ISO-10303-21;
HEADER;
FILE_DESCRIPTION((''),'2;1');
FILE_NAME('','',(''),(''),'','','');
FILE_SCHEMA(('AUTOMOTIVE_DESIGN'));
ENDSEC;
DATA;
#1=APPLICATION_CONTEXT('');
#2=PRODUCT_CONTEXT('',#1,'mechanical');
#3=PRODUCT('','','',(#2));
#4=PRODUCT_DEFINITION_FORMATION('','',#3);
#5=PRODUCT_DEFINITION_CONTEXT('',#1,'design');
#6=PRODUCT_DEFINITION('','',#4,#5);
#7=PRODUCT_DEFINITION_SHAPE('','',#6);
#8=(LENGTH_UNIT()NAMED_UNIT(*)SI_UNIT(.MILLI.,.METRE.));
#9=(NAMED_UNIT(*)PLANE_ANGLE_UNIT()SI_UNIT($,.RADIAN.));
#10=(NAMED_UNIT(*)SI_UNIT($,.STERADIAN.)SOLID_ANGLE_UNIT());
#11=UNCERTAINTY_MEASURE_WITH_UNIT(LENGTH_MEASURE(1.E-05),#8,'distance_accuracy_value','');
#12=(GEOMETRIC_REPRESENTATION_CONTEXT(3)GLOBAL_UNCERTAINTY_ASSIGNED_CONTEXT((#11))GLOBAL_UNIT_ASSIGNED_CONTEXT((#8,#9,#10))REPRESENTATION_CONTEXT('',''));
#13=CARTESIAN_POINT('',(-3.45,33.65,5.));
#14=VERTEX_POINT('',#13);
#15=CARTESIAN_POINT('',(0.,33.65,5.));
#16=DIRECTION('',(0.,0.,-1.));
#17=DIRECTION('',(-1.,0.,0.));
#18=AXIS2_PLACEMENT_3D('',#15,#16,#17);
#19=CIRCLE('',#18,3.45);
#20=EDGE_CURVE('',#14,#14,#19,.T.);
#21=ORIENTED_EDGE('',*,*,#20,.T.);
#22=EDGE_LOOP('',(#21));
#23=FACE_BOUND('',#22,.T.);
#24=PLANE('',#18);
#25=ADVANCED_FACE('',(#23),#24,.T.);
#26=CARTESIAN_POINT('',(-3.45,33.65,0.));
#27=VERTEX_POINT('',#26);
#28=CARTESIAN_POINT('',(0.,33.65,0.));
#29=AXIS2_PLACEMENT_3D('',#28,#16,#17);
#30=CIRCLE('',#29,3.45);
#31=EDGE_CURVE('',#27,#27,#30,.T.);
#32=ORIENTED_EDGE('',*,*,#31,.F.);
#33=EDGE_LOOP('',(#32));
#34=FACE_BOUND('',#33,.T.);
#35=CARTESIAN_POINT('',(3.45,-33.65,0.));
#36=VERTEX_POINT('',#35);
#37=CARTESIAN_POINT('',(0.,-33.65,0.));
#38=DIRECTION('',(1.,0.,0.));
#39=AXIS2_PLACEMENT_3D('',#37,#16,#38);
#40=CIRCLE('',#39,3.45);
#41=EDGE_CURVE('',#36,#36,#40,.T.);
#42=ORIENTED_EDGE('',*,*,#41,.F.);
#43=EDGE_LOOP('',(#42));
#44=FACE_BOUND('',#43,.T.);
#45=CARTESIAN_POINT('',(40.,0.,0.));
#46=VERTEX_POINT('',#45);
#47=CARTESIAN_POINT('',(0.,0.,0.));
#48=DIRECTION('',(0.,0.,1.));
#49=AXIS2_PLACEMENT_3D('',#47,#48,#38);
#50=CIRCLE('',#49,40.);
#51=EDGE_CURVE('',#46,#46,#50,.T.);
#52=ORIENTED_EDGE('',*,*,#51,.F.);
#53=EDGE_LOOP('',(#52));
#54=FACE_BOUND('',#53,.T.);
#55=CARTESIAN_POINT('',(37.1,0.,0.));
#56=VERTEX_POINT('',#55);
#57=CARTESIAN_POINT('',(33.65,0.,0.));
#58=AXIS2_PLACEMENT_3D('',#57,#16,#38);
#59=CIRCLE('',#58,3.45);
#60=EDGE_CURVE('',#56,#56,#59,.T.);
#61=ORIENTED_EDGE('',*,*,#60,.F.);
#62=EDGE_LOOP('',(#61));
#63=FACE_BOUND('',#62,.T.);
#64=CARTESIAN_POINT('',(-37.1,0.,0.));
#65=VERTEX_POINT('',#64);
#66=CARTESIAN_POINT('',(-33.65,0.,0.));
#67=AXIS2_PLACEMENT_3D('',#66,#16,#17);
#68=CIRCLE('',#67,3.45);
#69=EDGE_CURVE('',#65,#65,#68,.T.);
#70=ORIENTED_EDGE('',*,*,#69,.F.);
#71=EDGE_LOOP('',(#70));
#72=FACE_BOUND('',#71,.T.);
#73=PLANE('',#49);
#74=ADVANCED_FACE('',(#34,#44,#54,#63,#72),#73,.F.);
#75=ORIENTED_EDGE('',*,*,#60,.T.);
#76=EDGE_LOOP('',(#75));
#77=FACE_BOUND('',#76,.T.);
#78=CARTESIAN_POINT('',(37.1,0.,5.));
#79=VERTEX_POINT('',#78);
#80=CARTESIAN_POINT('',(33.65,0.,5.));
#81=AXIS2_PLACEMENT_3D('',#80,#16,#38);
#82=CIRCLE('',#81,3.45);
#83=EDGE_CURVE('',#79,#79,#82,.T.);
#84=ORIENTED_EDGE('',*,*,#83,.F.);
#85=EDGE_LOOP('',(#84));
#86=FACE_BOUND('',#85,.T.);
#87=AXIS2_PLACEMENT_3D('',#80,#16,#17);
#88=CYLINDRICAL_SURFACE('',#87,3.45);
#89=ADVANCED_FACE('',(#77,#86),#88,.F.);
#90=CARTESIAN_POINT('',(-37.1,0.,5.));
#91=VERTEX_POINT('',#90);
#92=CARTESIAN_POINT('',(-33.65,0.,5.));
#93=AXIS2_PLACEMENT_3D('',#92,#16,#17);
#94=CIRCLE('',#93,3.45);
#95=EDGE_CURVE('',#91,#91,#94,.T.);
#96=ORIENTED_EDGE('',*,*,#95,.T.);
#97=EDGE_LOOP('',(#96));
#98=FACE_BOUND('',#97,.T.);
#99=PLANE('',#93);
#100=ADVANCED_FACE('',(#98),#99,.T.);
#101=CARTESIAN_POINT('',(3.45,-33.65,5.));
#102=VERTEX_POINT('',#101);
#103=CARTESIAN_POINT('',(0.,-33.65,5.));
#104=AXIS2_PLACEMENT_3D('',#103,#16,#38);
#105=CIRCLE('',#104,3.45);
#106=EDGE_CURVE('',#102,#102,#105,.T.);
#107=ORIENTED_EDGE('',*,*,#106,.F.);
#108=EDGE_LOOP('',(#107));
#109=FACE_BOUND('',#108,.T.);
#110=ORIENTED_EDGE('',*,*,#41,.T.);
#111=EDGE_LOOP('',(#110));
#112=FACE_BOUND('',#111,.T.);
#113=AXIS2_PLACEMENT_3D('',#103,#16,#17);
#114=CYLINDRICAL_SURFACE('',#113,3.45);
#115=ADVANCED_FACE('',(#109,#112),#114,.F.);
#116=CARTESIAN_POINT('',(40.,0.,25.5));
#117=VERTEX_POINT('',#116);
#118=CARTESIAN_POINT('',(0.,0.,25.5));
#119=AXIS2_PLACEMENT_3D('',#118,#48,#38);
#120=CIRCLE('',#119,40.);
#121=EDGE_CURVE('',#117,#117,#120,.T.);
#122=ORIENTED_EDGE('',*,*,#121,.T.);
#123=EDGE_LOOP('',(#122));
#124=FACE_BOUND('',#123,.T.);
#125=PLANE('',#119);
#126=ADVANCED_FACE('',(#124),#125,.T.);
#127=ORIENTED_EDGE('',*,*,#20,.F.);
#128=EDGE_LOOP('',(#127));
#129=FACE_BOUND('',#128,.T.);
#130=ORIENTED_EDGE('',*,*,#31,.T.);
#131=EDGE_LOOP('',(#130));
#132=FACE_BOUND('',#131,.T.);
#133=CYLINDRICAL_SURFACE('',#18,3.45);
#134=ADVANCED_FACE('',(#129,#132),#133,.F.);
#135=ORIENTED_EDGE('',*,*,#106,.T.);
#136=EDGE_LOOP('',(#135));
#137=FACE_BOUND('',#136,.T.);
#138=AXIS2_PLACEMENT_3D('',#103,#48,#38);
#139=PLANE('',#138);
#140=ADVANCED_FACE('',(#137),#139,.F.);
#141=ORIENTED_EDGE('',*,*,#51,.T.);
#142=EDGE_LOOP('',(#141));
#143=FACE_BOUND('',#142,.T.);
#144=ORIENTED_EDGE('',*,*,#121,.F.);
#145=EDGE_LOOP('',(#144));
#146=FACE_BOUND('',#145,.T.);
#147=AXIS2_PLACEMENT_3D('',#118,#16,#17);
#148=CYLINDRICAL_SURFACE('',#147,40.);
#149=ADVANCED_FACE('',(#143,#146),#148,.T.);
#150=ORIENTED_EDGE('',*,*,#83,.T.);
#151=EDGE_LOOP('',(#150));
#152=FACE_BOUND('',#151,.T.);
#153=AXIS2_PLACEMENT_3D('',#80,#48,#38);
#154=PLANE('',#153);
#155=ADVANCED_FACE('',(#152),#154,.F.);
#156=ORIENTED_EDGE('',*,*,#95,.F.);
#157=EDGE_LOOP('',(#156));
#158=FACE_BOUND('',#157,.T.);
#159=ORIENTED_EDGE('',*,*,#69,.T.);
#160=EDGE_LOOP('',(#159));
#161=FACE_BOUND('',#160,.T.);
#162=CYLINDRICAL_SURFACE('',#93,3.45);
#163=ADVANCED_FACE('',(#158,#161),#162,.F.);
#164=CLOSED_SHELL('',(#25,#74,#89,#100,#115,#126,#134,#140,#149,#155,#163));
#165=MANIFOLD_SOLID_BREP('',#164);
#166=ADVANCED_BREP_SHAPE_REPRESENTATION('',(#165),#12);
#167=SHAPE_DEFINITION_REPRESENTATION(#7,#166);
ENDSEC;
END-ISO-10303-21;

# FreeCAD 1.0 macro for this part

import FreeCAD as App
import Part
import Sketcher

V = App.Vector
Q = App.Units.Quantity

doc = App.newDocument("Part")
params = doc.addObject("Spreadsheet::Sheet", "Params")
for row, (alias, value) in enumerate([
    ("sketch1_diameter", "80 mm"),
    ("pad1_length", "25.5 mm"),
    ("sketch2_diameter", "6.9 mm"),
    ("pocket1_length", "5 mm"),
], start=1):
    params.set(f"A{row}", alias)
    params.set(f"B{row}", "=" + value)
    params.setAlias(f"B{row}", alias)

body = doc.addObject("PartDesign::Body", "Body")

sketch1 = doc.addObject("Sketcher::SketchObject", "Sketch")
body.addObject(sketch1)
sketch1.AttachmentSupport = (doc.XY_Plane, [""])
sketch1.MapMode = "FlatFace"
sketch1.addGeometry(Part.Circle(V(0, 0, 0), V(0, 0, 1), 40), False)
sketch1.addConstraint(Sketcher.Constraint("Coincident", 0, 3, -1, 1))
sketch1.addConstraint(Sketcher.Constraint("Diameter", 0, Q("80 mm")))
sketch1.setExpression("Constraints[1]", "Params.sketch1_diameter")
pad1 = doc.addObject("PartDesign::Pad", "Pad")
body.addObject(pad1)
pad1.Profile = sketch1
pad1.setExpression("Length", "Params.pad1_length")

sketch2 = doc.addObject("Sketcher::SketchObject", "Sketch001")
body.addObject(sketch2)
sketch2.AttachmentSupport = (doc.XY_Plane, [""])
sketch2.MapMode = "FlatFace"
sketch2.addGeometry(Part.Circle(V(0, 33.65, 0), V(0, 0, 1), 3.45), False)
sketch2.addGeometry(Part.Circle(V(-33.65, 0, 0), V(0, 0, 1), 3.45), False)
sketch2.addGeometry(Part.Circle(V(0, -33.65, 0), V(0, 0, 1), 3.45), False)
sketch2.addGeometry(Part.Circle(V(33.65, 0, 0), V(0, 0, 1), 3.45), False)
sketch2.addConstraint(Sketcher.Constraint("Equal", 0, 1))
sketch2.addConstraint(Sketcher.Constraint("Equal", 1, 2))
sketch2.addConstraint(Sketcher.Constraint("Equal", 2, 3))
sketch2.addConstraint(Sketcher.Constraint("Symmetric", 0, 3, 2, 3, -1, 1))
sketch2.addConstraint(Sketcher.Constraint("Symmetric", 1, 3, 3, 3, -1, 1))
sketch2.addConstraint(Sketcher.Constraint("PointOnObject", 0, 3, -2))
sketch2.addConstraint(Sketcher.Constraint("PointOnObject", 1, 3, -1))
sketch2.addConstraint(Sketcher.Constraint("Diameter", 0, Q("6.9 mm")))
sketch2.addConstraint(Sketcher.Constraint("DistanceY", 2, 3, 0, 3, Q("67.3 mm")))
sketch2.addConstraint(Sketcher.Constraint("DistanceX", 1, 3, 3, 3, Q("67.3 mm")))
sketch2.setExpression("Constraints[7]", "Params.sketch2_diameter")
pocket1 = doc.addObject("PartDesign::Pocket", "Pocket")
body.addObject(pocket1)
pocket1.Profile = sketch2
pocket1.setExpression("Length", "Params.pocket1_length")
pocket1.Reversed = True

doc.recompute()
